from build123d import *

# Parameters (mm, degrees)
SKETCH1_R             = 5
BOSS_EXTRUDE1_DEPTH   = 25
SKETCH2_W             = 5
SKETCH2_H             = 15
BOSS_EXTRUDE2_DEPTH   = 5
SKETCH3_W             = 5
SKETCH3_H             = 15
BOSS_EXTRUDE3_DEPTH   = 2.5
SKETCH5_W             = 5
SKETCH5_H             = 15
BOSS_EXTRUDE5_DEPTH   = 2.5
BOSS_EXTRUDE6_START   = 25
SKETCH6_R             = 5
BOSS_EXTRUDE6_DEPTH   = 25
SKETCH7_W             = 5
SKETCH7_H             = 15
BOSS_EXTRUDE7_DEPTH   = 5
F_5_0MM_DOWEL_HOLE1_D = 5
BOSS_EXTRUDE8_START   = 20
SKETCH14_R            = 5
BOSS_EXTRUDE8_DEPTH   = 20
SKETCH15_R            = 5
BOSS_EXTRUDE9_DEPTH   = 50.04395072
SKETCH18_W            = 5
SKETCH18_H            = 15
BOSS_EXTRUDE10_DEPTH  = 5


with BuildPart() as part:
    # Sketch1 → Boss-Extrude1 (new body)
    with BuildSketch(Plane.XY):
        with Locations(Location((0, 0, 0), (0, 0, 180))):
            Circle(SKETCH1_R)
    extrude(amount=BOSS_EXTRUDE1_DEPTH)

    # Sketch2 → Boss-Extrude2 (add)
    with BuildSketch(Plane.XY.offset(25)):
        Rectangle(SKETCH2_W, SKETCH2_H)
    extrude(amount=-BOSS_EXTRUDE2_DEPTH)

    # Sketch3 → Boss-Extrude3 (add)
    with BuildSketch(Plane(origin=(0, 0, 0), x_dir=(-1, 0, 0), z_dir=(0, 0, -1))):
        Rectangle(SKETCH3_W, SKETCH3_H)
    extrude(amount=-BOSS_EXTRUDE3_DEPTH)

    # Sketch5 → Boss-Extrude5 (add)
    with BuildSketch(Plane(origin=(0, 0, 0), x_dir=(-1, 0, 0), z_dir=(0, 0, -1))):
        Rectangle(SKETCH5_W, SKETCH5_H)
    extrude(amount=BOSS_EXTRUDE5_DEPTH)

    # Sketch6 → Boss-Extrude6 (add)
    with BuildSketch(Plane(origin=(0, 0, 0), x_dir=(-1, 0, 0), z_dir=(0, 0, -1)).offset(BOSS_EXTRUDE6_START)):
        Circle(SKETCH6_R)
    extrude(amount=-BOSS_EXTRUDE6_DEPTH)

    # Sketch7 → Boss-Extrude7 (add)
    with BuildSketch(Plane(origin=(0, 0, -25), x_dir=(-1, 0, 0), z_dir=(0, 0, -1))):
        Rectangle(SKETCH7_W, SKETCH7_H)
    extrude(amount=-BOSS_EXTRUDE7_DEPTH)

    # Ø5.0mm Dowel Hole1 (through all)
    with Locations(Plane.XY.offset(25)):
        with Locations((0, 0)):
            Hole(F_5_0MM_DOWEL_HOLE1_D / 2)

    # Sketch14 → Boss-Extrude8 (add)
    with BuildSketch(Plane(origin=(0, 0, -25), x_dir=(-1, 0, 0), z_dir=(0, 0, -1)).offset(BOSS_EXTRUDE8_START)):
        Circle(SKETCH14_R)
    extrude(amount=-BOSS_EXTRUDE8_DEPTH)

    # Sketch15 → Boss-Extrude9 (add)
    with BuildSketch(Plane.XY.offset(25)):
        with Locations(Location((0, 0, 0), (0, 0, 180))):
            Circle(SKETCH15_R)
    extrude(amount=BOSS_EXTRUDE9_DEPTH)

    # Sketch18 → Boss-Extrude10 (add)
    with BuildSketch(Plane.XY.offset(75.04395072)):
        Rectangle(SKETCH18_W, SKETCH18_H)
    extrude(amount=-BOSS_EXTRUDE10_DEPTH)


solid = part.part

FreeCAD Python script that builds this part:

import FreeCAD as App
import Part
import Sketcher

V = App.Vector


def add_polygon(sketch, points):
    """Adds a closed chain of lines whose ends are joined by coincident constraints."""
    first, n = sketch.GeometryCount, len(points)
    for a, b in zip(points, points[1:] + points[:1]):
        sketch.addGeometry(Part.LineSegment(App.Vector(*a, 0), App.Vector(*b, 0)), False)
    for i in range(n):
        sketch.addConstraint(Sketcher.Constraint("Coincident", first + i, 2, first + (i + 1) % n, 1))

doc = App.newDocument("Part")
body = doc.addObject("PartDesign::Body", "Body")

# Sketch on XY plane
sketch1 = doc.addObject("Sketcher::SketchObject", "Sketch")
body.addObject(sketch1)
sketch1.AttachmentSupport = (doc.XY_Plane, [""])
sketch1.MapMode = "FlatFace"
sketch1.addGeometry(Part.Circle(V(0, 0, 0), V(0, 0, 1), 5), False)
sketch1.addConstraint(Sketcher.Constraint("Coincident", 0, 3, -1, 1))
sketch1.addConstraint(Sketcher.Constraint("Diameter", 0, 10.0))
pad1 = doc.addObject("PartDesign::Pad", "Pad")
body.addObject(pad1)
pad1.Profile = sketch1
pad1.Length = 25

# Sketch on XY plane
sketch2 = doc.addObject("Sketcher::SketchObject", "Sketch001")
body.addObject(sketch2)
sketch2.AttachmentSupport = (doc.XY_Plane, [""])
sketch2.MapMode = "FlatFace"
sketch2.AttachmentOffset = App.Placement(V(0, 0, 25), App.Rotation())
add_polygon(sketch2, [(-2.5, 7.5), (-2.5, -7.5), (2.5, -7.5), (2.5, 7.5)])  # lines 0-3
sketch2.addConstraint(Sketcher.Constraint("Vertical", 0))
sketch2.addConstraint(Sketcher.Constraint("Horizontal", 1))
sketch2.addConstraint(Sketcher.Constraint("Vertical", 2))
sketch2.addConstraint(Sketcher.Constraint("Horizontal", 3))
sketch2.addConstraint(Sketcher.Constraint("Symmetric", 0, 2, 2, 2, -1, 1))
sketch2.addConstraint(Sketcher.Constraint("DistanceX", 1, 1, 1, 2, 5.0))
sketch2.addConstraint(Sketcher.Constraint("DistanceY", 0, 2, 0, 1, 15.0))
pad2 = doc.addObject("PartDesign::Pad", "Pad001")
body.addObject(pad2)
pad2.Profile = sketch2
pad2.Length = 5
pad2.Reversed = True

# Sketch on XY plane
sketch3 = doc.addObject("Sketcher::SketchObject", "Sketch002")
body.addObject(sketch3)
sketch3.AttachmentSupport = (doc.XY_Plane, [""])
sketch3.MapMode = "FlatFace"
add_polygon(sketch3, [(2.5, 7.5), (2.5, -7.5), (-2.5, -7.5), (-2.5, 7.5)])  # lines 0-3
sketch3.addConstraint(Sketcher.Constraint("Vertical", 0))
sketch3.addConstraint(Sketcher.Constraint("Horizontal", 1))
sketch3.addConstraint(Sketcher.Constraint("Vertical", 2))
sketch3.addConstraint(Sketcher.Constraint("Horizontal", 3))
sketch3.addConstraint(Sketcher.Constraint("Symmetric", 0, 2, 2, 2, -1, 1))
sketch3.addConstraint(Sketcher.Constraint("DistanceX", 1, 2, 1, 1, 5.0))
sketch3.addConstraint(Sketcher.Constraint("DistanceY", 0, 2, 0, 1, 15.0))
pad3 = doc.addObject("PartDesign::Pad", "Pad002")
body.addObject(pad3)
pad3.Profile = sketch3
pad3.Length = 2.5

# Sketch on XY plane
sketch4 = doc.addObject("Sketcher::SketchObject", "Sketch003")
body.addObject(sketch4)
sketch4.AttachmentSupport = (doc.XY_Plane, [""])
sketch4.MapMode = "FlatFace"
add_polygon(sketch4, [(2.5, 7.5), (2.5, -7.5), (-2.5, -7.5), (-2.5, 7.5)])  # lines 0-3
sketch4.addConstraint(Sketcher.Constraint("Vertical", 0))
sketch4.addConstraint(Sketcher.Constraint("Horizontal", 1))
sketch4.addConstraint(Sketcher.Constraint("Vertical", 2))
sketch4.addConstraint(Sketcher.Constraint("Horizontal", 3))
sketch4.addConstraint(Sketcher.Constraint("Symmetric", 0, 2, 2, 2, -1, 1))
sketch4.addConstraint(Sketcher.Constraint("DistanceX", 1, 2, 1, 1, 5.0))
sketch4.addConstraint(Sketcher.Constraint("DistanceY", 0, 2, 0, 1, 15.0))
pad4 = doc.addObject("PartDesign::Pad", "Pad003")
body.addObject(pad4)
pad4.Profile = sketch4
pad4.Length = 2.5
pad4.Reversed = True

# Sketch on XY plane
sketch5 = doc.addObject("Sketcher::SketchObject", "Sketch004")
body.addObject(sketch5)
sketch5.AttachmentSupport = (doc.XY_Plane, [""])
sketch5.MapMode = "FlatFace"
sketch5.AttachmentOffset = App.Placement(V(0, 0, -25), App.Rotation())
sketch5.addGeometry(Part.Circle(V(0, 0, 0), V(0, 0, 1), 5), False)
sketch5.addConstraint(Sketcher.Constraint("Coincident", 0, 3, -1, 1))
sketch5.addConstraint(Sketcher.Constraint("Diameter", 0, 10.0))
pad5 = doc.addObject("PartDesign::Pad", "Pad004")
body.addObject(pad5)
pad5.Profile = sketch5
pad5.Length = 25

# Sketch on XY plane
sketch6 = doc.addObject("Sketcher::SketchObject", "Sketch005")
body.addObject(sketch6)
sketch6.AttachmentSupport = (doc.XY_Plane, [""])
sketch6.MapMode = "FlatFace"
sketch6.AttachmentOffset = App.Placement(V(0, 0, -25), App.Rotation())
add_polygon(sketch6, [(2.5, 7.5), (2.5, -7.5), (-2.5, -7.5), (-2.5, 7.5)])  # lines 0-3
sketch6.addConstraint(Sketcher.Constraint("Vertical", 0))
sketch6.addConstraint(Sketcher.Constraint("Horizontal", 1))
sketch6.addConstraint(Sketcher.Constraint("Vertical", 2))
sketch6.addConstraint(Sketcher.Constraint("Horizontal", 3))
sketch6.addConstraint(Sketcher.Constraint("Symmetric", 0, 2, 2, 2, -1, 1))
sketch6.addConstraint(Sketcher.Constraint("DistanceX", 1, 2, 1, 1, 5.0))
sketch6.addConstraint(Sketcher.Constraint("DistanceY", 0, 2, 0, 1, 15.0))
pad6 = doc.addObject("PartDesign::Pad", "Pad005")
body.addObject(pad6)
pad6.Profile = sketch6
pad6.Length = 5

# Sketch on XY plane
sketch7 = doc.addObject("Sketcher::SketchObject", "Sketch006")
body.addObject(sketch7)
sketch7.AttachmentSupport = (doc.XY_Plane, [""])
sketch7.MapMode = "FlatFace"
sketch7.AttachmentOffset = App.Placement(V(0, 0, 25), App.Rotation())
sketch7.addGeometry(Part.Circle(V(0, 0, 0), V(0, 0, 1), 2.5), False)
sketch7.addConstraint(Sketcher.Constraint("Coincident", 0, 3, -1, 1))
sketch7.addConstraint(Sketcher.Constraint("Diameter", 0, 5.0))
doc.recompute()
hole = doc.addObject("PartDesign::Hole", "Hole")
body.addObject(hole)
hole.Profile = sketch7
hole.ThreadType = "None"
hole.Diameter = 5
hole.DepthType = "ThroughAll"

# Sketch on XY plane
sketch8 = doc.addObject("Sketcher::SketchObject", "Sketch007")
body.addObject(sketch8)
sketch8.AttachmentSupport = (doc.XY_Plane, [""])
sketch8.MapMode = "FlatFace"
sketch8.AttachmentOffset = App.Placement(V(0, 0, -45), App.Rotation())
sketch8.addGeometry(Part.Circle(V(0, 0, 0), V(0, 0, 1), 5), False)
sketch8.addConstraint(Sketcher.Constraint("Coincident", 0, 3, -1, 1))
sketch8.addConstraint(Sketcher.Constraint("Diameter", 0, 10.0))
pad7 = doc.addObject("PartDesign::Pad", "Pad006")
body.addObject(pad7)
pad7.Profile = sketch8
pad7.Length = 20

# Sketch on XY plane
sketch9 = doc.addObject("Sketcher::SketchObject", "Sketch008")
body.addObject(sketch9)
sketch9.AttachmentSupport = (doc.XY_Plane, [""])
sketch9.MapMode = "FlatFace"
sketch9.AttachmentOffset = App.Placement(V(0, 0, 25), App.Rotation())
sketch9.addGeometry(Part.Circle(V(0, 0, 0), V(0, 0, 1), 5), False)
sketch9.addConstraint(Sketcher.Constraint("Coincident", 0, 3, -1, 1))
sketch9.addConstraint(Sketcher.Constraint("Diameter", 0, 10.0))
pad8 = doc.addObject("PartDesign::Pad", "Pad007")
body.addObject(pad8)
pad8.Profile = sketch9
pad8.Length = 50.043951

# Sketch on XY plane
sketch10 = doc.addObject("Sketcher::SketchObject", "Sketch009")
body.addObject(sketch10)
sketch10.AttachmentSupport = (doc.XY_Plane, [""])
sketch10.MapMode = "FlatFace"
sketch10.AttachmentOffset = App.Placement(V(0, 0, 75.043951), App.Rotation())
add_polygon(sketch10, [(-2.5, 7.5), (-2.5, -7.5), (2.5, -7.5), (2.5, 7.5)])  # lines 0-3
sketch10.addConstraint(Sketcher.Constraint("Vertical", 0))
sketch10.addConstraint(Sketcher.Constraint("Horizontal", 1))
sketch10.addConstraint(Sketcher.Constraint("Vertical", 2))
sketch10.addConstraint(Sketcher.Constraint("Horizontal", 3))
sketch10.addConstraint(Sketcher.Constraint("Symmetric", 0, 2, 2, 2, -1, 1))
sketch10.addConstraint(Sketcher.Constraint("DistanceX", 1, 1, 1, 2, 5.0))
sketch10.addConstraint(Sketcher.Constraint("DistanceY", 0, 2, 0, 1, 15.0))
pad9 = doc.addObject("PartDesign::Pad", "Pad008")
body.addObject(pad9)
pad9.Profile = sketch10
pad9.Length = 5
pad9.Reversed = True

doc.recompute()
